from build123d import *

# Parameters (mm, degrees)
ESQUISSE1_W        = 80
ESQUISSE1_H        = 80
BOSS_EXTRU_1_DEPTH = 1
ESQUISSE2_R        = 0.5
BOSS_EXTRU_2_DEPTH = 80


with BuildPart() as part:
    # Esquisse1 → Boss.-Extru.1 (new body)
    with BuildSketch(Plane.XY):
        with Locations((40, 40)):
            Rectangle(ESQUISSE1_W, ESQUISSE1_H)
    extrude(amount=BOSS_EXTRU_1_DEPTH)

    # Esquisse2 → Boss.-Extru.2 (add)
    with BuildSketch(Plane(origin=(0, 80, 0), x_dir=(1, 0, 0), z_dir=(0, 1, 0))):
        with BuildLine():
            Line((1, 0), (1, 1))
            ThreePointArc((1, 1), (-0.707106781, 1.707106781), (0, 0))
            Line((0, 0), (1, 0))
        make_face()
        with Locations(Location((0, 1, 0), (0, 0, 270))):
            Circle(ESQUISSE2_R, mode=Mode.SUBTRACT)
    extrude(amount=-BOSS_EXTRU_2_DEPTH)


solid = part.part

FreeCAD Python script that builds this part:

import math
import FreeCAD as App
import Part
import Sketcher


def add_polygon(sketch, points):
    """Adds a closed chain of lines whose ends are joined by coincident constraints."""
    first, n = sketch.GeometryCount, len(points)
    for a, b in zip(points, points[1:] + points[:1]):
        sketch.addGeometry(Part.LineSegment(App.Vector(*a, 0), App.Vector(*b, 0)), False)
    for i in range(n):
        sketch.addConstraint(Sketcher.Constraint("Coincident", first + i, 2, first + (i + 1) % n, 1))

doc = App.newDocument("Part")
body = doc.addObject("PartDesign::Body", "Body")

# Sketch on XY plane
sketch1 = body.newObject("Sketcher::SketchObject", "Sketch")
sketch1.AttachmentSupport = (doc.getObject("XY_Plane"), [""])
sketch1.MapMode = "FlatFace"
add_polygon(sketch1, [(0, 80), (0, 0), (80, 0), (80, 80)])  # lines 0-3
sketch1.addConstraint(Sketcher.Constraint("Vertical", 0))
sketch1.addConstraint(Sketcher.Constraint("Horizontal", 1))
sketch1.addConstraint(Sketcher.Constraint("Vertical", 2))
sketch1.addConstraint(Sketcher.Constraint("Horizontal", 3))
sketch1.addConstraint(Sketcher.Constraint("Coincident", 0, 2, -1, 1))
sketch1.addConstraint(Sketcher.Constraint("Equal", 3, 0))
sketch1.addConstraint(Sketcher.Constraint("DistanceX", 1, 1, 1, 2, 80.0))
pad1 = body.newObject("PartDesign::Pad", "Pad")
pad1.Profile = sketch1
pad1.Length = 1

# Sketch on XZ plane
sketch2 = body.newObject("Sketcher::SketchObject", "Sketch001")
sketch2.AttachmentSupport = (doc.getObject("XZ_Plane"), [""])
sketch2.MapMode = "FlatFace"
sketch2.AttachmentOffset = App.Placement(App.Vector(0, 0, -80), App.Rotation())
sketch2.addGeometry(Part.LineSegment(App.Vector(1, 0, 0), App.Vector(1, -1, 0)), False)
sketch2.addGeometry(Part.ArcOfCircle(Part.Circle(App.Vector(0, -1, 0), App.Vector(0, 0, 1), 1), math.radians(90), math.radians(360)), False)
sketch2.addGeometry(Part.LineSegment(App.Vector(0, 0, 0), App.Vector(1, 0, 0)), False)
sketch2.addGeometry(Part.Circle(App.Vector(0, -1, 0), App.Vector(0, 0, 1), 0.5), False)
sketch2.addConstraint(Sketcher.Constraint("Tangent", 0, 2, 1, 2))
sketch2.addConstraint(Sketcher.Constraint("Tangent", 1, 1, 2, 1))
sketch2.addConstraint(Sketcher.Constraint("Coincident", 2, 2, 0, 1))
sketch2.addConstraint(Sketcher.Constraint("Vertical", 0))
sketch2.addConstraint(Sketcher.Constraint("Horizontal", 2))
sketch2.addConstraint(Sketcher.Constraint("Coincident", 1, 1, -1, 1))
sketch2.addConstraint(Sketcher.Constraint("Coincident", 3, 3, 1, 3))
sketch2.addConstraint(Sketcher.Constraint("Diameter", 3, 1.0))
sketch2.addConstraint(Sketcher.Constraint("Radius", 1, 1.0))
pad2 = body.newObject("PartDesign::Pad", "Pad001")
pad2.Profile = sketch2
pad2.Length = 80

doc.recompute()
